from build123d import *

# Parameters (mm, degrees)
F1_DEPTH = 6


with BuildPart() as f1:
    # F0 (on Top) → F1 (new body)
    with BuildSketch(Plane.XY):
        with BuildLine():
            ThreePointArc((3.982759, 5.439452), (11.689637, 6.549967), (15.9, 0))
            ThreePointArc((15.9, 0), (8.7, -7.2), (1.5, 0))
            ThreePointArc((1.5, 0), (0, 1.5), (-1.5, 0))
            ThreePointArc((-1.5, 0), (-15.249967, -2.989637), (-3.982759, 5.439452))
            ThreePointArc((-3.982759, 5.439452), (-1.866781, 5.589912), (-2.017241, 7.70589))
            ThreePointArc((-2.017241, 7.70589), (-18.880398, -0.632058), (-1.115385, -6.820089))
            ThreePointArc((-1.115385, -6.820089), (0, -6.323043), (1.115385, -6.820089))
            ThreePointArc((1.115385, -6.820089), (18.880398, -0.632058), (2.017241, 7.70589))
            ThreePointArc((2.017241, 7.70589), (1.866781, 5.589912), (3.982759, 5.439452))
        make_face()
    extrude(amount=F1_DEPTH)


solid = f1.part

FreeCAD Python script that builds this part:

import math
import FreeCAD as App
import Part
import Sketcher

doc = App.newDocument("Part")
body = doc.addObject("PartDesign::Body", "Body")

sketch1 = body.newObject("Sketcher::SketchObject", "Sketch")
sketch1.AttachmentSupport = (doc.getObject("XY_Plane"), [""])
sketch1.MapMode = "FlatFace"
sketch1.addGeometry([
    Part.ArcOfCircle(Part.Circle(App.Vector(8.7, 0, 0), App.Vector(0, 0, 1), 7.2), math.radians(0), math.radians(131)),
    Part.ArcOfCircle(Part.Circle(App.Vector(8.7, 0, 0), App.Vector(0, 0, 1), 7.2), math.radians(180), math.radians(360)),
    Part.ArcOfCircle(Part.Circle(App.Vector(0, 0, 0), App.Vector(0, 0, 1), 1.5), math.radians(0), math.radians(180)),
    Part.ArcOfCircle(Part.Circle(App.Vector(-8.7, 0, 0), App.Vector(0, 0, 1), 7.2), math.radians(49), math.radians(360)),
    Part.ArcOfCircle(Part.Circle(App.Vector(-3, 6.6, 0), App.Vector(0, 0, 1), 1.5), math.radians(-131), math.radians(49)),
    Part.ArcOfCircle(Part.Circle(App.Vector(-8.7, 0, 0), App.Vector(0, 0, 1), 10.2), math.radians(49), math.radians(318)),
    Part.ArcOfCircle(Part.Circle(App.Vector(0, -7.8, 0), App.Vector(0, 0, 1), 1.5), math.radians(42), math.radians(138)),
    Part.ArcOfCircle(Part.Circle(App.Vector(8.7, 0, 0), App.Vector(0, 0, 1), 10.2), math.radians(-138), math.radians(131)),
    Part.ArcOfCircle(Part.Circle(App.Vector(3, 6.6, 0), App.Vector(0, 0, 1), 1.5), math.radians(131), math.radians(311)),
], False)
sketch1.addConstraint([
    Sketcher.Constraint("Tangent", 0, 1, 1, 2),
    Sketcher.Constraint("Tangent", 1, 1, 2, 1),
    Sketcher.Constraint("Tangent", 2, 2, 3, 2),
    Sketcher.Constraint("Tangent", 3, 1, 4, 1),
    Sketcher.Constraint("Tangent", 4, 2, 5, 1),
    Sketcher.Constraint("Tangent", 5, 2, 6, 2),
    Sketcher.Constraint("Tangent", 6, 1, 7, 1),
    Sketcher.Constraint("Tangent", 7, 2, 8, 1),
    Sketcher.Constraint("Tangent", 8, 2, 0, 2),
    Sketcher.Constraint("Coincident", 2, 3, -1, 1),
    Sketcher.Constraint("Coincident", 5, 3, 3, 3),
    Sketcher.Constraint("Coincident", 7, 3, 0, 3),
    Sketcher.Constraint("Equal", 0, 1),
    Sketcher.Constraint("Equal", 1, 3),
    Sketcher.Constraint("Equal", 2, 4),
    Sketcher.Constraint("Equal", 4, 6),
    Sketcher.Constraint("Equal", 5, 7),
    Sketcher.Constraint("Symmetric", 4, 3, 8, 3, -2),
    Sketcher.Constraint("PointOnObject", 0, 3, -1),
    Sketcher.Constraint("PointOnObject", 0, 1, -1),
    Sketcher.Constraint("Radius", 0, 7.2),
    Sketcher.Constraint("Radius", 2, 1.5),
    Sketcher.Constraint("DistanceX", 4, 3, -1, 1, 3.0),
])
pad1 = body.newObject("PartDesign::Pad", "Pad")
pad1.Profile = sketch1
pad1.Length = 6

doc.recompute()
